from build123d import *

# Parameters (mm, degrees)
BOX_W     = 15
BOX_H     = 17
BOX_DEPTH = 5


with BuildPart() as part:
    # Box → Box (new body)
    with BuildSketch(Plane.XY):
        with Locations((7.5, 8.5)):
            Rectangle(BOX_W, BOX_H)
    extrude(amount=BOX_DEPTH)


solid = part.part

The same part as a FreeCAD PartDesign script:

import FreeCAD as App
import Part
import Sketcher
Q = App.Units.Quantity


def add_polygon(sketch, points):
    """Adds a closed chain of lines whose ends are joined by coincident constraints."""
    first, n = sketch.GeometryCount, len(points)
    for a, b in zip(points, points[1:] + points[:1]):
        sketch.addGeometry(Part.LineSegment(App.Vector(*a, 0), App.Vector(*b, 0)), False)
    for i in range(n):
        sketch.addConstraint(Sketcher.Constraint("Coincident", first + i, 2, first + (i + 1) % n, 1))

doc = App.newDocument("Part")
body = doc.addObject("PartDesign::Body", "Body")

# Sketch on XY plane
sketch1 = body.newObject("Sketcher::SketchObject", "Sketch")
sketch1.AttachmentSupport = (doc.getObject("XY_Plane"), [""])
sketch1.MapMode = "FlatFace"
add_polygon(sketch1, [(0, 17), (0, 0), (15, 0), (15, 17)])  # lines 0-3
sketch1.addConstraint(Sketcher.Constraint("Vertical", 0))
sketch1.addConstraint(Sketcher.Constraint("Horizontal", 1))
sketch1.addConstraint(Sketcher.Constraint("Vertical", 2))
sketch1.addConstraint(Sketcher.Constraint("Horizontal", 3))
sketch1.addConstraint(Sketcher.Constraint("Coincident", 0, 2, -1, 1))
sketch1.addConstraint(Sketcher.Constraint("DistanceX", 1, 1, 1, 2, Q("15 mm")))
sketch1.addConstraint(Sketcher.Constraint("DistanceY", 0, 2, 0, 1, Q("17 mm")))
pad1 = body.newObject("PartDesign::Pad", "Pad")
pad1.Profile = sketch1
pad1.Length = 5

doc.recompute()
